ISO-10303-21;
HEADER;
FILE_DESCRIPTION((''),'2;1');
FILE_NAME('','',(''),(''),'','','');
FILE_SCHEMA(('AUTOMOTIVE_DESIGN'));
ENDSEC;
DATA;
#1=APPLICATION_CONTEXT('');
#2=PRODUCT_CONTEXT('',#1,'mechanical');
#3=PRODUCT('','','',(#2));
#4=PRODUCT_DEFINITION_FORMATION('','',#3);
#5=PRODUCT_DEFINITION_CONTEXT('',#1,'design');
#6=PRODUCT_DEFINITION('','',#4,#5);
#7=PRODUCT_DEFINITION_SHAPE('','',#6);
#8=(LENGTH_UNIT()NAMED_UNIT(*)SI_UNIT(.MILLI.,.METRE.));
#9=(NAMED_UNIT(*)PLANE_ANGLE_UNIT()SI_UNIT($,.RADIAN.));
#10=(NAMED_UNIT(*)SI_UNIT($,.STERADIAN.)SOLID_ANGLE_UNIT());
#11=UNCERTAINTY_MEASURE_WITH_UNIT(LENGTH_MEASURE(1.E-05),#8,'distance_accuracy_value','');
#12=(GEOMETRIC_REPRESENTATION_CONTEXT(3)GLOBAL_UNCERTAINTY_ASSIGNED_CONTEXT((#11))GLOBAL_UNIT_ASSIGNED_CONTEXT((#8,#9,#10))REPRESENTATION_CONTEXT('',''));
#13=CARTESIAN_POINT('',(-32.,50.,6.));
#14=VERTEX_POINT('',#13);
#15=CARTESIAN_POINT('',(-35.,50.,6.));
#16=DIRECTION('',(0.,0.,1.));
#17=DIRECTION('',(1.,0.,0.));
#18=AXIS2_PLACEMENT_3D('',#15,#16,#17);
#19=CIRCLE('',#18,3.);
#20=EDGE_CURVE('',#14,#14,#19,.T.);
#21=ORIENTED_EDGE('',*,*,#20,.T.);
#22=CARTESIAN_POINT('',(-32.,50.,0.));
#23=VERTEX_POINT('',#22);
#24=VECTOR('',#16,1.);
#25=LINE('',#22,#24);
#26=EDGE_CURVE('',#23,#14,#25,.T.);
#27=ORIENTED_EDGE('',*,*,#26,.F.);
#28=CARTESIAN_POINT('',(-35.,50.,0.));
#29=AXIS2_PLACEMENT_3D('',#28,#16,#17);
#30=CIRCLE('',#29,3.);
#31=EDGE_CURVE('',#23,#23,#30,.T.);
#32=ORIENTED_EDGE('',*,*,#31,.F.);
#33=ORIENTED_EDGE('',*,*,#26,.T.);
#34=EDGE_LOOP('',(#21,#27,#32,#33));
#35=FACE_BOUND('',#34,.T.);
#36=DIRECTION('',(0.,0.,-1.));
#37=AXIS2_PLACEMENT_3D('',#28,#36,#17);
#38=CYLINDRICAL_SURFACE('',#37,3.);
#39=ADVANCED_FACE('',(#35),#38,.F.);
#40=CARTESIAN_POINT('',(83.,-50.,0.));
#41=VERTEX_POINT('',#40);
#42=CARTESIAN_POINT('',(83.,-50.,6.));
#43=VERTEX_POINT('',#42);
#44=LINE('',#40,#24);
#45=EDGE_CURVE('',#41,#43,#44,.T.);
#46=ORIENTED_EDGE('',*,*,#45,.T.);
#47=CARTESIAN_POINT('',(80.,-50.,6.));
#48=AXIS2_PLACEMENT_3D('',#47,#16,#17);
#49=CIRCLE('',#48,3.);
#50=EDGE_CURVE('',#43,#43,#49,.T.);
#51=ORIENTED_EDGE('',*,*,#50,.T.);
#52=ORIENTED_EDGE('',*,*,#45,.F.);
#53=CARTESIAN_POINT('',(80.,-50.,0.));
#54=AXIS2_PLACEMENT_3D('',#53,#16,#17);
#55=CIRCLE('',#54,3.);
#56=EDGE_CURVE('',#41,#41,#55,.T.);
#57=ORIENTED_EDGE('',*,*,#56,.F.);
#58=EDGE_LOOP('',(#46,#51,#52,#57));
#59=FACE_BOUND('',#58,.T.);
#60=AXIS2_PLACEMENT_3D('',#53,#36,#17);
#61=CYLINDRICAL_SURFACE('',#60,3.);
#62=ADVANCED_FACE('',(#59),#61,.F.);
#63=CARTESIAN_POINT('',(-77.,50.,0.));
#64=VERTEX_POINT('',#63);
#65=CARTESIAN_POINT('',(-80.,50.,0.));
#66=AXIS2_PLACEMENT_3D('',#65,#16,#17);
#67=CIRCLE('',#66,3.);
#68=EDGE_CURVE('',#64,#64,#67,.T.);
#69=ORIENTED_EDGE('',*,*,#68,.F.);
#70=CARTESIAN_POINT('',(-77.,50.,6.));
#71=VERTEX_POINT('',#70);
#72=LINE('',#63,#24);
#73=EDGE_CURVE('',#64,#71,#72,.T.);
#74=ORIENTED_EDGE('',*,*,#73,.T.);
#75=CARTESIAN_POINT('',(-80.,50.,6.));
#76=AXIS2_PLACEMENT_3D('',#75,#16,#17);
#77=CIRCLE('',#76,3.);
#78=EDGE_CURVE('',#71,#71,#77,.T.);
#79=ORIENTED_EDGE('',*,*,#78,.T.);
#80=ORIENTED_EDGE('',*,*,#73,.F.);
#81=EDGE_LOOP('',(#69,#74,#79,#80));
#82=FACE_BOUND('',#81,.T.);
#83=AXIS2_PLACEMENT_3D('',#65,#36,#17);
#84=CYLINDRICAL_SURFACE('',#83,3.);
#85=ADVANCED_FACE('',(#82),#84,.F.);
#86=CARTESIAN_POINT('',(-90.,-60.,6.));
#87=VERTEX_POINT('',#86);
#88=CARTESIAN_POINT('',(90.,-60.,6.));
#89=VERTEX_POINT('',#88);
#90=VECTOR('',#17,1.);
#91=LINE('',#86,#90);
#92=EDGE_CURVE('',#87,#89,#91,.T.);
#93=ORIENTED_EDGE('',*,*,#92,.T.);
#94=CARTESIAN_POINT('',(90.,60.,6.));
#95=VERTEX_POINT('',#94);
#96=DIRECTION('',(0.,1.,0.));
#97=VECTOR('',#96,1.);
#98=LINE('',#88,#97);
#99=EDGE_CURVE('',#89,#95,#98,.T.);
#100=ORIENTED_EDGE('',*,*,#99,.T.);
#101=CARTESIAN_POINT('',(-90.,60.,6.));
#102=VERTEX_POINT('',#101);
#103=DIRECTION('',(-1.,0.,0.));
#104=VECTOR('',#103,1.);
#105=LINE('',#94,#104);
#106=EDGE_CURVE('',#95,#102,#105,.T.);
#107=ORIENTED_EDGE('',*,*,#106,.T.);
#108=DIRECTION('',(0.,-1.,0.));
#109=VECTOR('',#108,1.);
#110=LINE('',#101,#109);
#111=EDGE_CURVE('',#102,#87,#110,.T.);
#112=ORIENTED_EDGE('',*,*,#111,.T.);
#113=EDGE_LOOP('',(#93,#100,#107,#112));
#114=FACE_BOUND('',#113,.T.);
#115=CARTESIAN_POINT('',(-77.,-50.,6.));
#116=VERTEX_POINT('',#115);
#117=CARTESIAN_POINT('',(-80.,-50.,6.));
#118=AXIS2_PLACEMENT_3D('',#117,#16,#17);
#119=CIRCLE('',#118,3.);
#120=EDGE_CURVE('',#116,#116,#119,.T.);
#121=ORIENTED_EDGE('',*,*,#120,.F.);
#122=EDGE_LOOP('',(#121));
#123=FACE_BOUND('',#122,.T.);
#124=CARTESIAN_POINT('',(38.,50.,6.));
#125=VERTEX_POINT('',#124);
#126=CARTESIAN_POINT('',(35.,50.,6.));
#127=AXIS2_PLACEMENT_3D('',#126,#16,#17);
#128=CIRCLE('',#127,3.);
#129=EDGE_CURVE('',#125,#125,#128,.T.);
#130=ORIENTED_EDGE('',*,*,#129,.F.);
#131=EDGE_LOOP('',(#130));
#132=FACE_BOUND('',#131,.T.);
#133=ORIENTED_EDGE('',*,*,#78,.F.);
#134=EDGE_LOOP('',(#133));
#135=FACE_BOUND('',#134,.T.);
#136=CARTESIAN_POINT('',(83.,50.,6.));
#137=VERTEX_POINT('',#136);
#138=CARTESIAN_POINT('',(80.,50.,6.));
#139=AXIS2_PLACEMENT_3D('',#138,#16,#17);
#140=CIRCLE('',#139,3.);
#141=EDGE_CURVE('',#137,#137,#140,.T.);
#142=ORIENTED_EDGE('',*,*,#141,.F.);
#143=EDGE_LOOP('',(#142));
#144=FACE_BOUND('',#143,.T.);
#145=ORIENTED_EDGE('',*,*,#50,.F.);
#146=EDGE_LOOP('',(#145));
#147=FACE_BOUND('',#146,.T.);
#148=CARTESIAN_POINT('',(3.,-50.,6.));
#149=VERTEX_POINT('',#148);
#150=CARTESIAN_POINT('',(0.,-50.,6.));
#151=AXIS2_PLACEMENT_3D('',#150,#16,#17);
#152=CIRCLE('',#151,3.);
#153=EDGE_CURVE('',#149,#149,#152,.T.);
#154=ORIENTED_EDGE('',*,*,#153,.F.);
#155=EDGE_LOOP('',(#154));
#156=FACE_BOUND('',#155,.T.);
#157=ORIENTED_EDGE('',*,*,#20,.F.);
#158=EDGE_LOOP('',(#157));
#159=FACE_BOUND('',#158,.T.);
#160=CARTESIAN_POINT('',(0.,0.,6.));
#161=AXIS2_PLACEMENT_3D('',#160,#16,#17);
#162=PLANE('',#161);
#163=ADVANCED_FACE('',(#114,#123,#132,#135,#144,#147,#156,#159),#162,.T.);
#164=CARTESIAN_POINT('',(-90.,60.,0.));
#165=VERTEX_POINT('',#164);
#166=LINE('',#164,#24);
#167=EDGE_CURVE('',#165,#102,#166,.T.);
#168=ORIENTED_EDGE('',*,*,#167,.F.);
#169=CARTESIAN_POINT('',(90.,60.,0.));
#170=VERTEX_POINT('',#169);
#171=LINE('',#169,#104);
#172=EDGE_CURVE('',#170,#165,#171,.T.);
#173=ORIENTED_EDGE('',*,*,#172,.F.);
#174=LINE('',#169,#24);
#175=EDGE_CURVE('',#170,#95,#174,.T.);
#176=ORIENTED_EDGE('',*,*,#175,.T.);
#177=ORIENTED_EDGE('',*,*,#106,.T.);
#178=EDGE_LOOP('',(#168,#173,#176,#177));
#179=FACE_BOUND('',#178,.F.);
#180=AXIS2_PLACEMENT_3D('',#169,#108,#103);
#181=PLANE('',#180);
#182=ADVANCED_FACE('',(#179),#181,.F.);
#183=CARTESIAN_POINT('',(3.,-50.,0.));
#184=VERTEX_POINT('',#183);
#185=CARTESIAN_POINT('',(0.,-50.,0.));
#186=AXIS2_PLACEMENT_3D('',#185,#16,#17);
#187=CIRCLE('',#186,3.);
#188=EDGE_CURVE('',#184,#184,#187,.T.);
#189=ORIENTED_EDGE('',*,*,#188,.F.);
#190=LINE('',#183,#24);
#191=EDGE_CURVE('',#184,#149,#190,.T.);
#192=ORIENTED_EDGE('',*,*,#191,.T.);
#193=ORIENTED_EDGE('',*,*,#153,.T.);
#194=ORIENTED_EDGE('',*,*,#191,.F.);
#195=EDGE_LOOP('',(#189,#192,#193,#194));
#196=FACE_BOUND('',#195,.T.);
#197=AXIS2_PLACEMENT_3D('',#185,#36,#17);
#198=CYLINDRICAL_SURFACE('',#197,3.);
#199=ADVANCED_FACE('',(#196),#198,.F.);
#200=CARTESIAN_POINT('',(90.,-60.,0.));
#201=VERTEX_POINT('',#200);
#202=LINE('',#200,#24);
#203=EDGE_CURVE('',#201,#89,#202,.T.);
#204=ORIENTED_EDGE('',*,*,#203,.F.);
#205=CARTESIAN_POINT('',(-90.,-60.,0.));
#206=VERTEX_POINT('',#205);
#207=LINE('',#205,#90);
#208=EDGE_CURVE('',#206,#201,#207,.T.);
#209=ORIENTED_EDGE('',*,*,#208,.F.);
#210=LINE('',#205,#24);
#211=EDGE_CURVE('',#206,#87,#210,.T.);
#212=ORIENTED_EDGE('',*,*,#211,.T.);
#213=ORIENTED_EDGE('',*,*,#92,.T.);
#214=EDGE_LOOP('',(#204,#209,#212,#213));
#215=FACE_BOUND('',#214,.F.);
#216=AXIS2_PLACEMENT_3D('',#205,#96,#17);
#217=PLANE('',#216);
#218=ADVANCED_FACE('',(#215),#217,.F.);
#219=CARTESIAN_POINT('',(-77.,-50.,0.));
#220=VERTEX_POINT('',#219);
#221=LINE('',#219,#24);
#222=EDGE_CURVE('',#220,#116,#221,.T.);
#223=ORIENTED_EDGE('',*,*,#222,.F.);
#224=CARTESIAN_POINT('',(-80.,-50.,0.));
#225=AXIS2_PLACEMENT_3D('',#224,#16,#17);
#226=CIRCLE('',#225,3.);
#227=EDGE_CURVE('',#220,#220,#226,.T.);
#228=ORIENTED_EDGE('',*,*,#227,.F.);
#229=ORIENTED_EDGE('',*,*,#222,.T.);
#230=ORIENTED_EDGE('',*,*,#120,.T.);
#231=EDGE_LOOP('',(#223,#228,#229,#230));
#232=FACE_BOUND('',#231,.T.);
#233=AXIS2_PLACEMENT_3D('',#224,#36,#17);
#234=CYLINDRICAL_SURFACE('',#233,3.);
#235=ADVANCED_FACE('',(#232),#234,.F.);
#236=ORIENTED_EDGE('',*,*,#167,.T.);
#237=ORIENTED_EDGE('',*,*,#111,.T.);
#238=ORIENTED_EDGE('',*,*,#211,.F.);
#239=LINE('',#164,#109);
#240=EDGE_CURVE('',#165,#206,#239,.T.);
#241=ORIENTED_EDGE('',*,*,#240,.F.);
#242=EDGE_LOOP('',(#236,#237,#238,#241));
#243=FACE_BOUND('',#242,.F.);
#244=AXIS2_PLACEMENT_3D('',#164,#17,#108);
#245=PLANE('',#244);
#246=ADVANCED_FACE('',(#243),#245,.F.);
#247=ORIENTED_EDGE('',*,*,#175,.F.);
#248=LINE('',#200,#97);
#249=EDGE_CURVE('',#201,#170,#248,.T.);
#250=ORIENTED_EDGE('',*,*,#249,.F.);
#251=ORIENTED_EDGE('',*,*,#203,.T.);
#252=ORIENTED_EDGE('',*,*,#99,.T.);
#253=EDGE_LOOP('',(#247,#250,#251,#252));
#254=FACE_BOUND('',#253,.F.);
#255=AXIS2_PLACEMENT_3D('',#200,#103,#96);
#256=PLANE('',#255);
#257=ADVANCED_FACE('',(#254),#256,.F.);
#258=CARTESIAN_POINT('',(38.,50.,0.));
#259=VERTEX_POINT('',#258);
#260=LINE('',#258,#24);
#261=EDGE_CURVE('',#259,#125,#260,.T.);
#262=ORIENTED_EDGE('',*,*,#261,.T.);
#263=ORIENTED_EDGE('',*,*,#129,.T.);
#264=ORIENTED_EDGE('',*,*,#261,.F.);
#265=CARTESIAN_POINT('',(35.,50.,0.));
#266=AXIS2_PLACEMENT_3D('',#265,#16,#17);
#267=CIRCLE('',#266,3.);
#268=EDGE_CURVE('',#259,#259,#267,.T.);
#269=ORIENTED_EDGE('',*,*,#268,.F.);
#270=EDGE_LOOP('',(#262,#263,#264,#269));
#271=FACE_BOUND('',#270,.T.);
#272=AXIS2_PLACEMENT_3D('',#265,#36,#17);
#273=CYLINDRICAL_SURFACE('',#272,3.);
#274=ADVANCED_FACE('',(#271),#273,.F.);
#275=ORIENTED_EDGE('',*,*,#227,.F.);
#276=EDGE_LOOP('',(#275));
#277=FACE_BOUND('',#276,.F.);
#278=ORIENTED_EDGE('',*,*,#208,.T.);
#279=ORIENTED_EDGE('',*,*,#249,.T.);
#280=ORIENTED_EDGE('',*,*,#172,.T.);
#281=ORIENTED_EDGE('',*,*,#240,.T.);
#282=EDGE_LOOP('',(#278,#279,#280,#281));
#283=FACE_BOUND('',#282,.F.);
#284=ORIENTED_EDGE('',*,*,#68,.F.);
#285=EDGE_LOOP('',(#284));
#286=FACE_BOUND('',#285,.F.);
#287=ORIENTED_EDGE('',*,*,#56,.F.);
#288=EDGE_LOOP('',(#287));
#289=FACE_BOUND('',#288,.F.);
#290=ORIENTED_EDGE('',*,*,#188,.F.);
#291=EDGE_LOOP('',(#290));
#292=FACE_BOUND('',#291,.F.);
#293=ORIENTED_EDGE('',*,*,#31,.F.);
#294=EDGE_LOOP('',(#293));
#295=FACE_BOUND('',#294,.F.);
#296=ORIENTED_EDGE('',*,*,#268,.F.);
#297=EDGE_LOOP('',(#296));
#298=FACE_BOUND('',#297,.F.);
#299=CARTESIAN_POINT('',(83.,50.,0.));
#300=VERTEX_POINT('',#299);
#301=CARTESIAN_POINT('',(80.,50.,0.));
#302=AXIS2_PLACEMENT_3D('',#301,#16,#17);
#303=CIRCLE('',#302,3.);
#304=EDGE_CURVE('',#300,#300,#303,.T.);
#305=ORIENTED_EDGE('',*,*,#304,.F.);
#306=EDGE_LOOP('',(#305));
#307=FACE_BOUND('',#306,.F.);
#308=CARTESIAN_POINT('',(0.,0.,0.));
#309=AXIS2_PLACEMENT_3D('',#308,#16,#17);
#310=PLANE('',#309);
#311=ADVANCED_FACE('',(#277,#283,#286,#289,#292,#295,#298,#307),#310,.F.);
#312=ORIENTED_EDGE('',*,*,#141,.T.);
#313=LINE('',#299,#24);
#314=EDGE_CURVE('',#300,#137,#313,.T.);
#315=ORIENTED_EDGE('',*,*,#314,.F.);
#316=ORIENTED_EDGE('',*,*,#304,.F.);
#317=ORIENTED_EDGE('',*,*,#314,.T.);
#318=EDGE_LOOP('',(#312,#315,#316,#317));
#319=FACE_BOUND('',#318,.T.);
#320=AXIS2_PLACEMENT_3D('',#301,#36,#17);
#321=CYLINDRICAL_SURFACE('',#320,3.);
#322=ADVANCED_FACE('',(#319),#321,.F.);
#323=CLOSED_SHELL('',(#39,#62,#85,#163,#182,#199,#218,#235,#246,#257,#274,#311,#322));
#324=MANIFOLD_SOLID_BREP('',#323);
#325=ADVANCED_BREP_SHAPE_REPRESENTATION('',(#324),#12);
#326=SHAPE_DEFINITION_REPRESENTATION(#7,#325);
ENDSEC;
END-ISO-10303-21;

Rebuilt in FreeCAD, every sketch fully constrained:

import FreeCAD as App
import Part
import Sketcher
from FreeCAD import Vector
Q = App.Units.Quantity


def add_polygon(sketch, points):
    """Adds a closed chain of lines whose ends are joined by coincident constraints."""
    first, n = sketch.GeometryCount, len(points)
    for a, b in zip(points, points[1:] + points[:1]):
        sketch.addGeometry(Part.LineSegment(App.Vector(*a, 0), App.Vector(*b, 0)), False)
    for i in range(n):
        sketch.addConstraint(Sketcher.Constraint("Coincident", first + i, 2, first + (i + 1) % n, 1))

doc = App.newDocument("Part")
params = doc.addObject("Spreadsheet::Sheet", "Params")
for row, (alias, value) in enumerate([
    ("sketch1_diameter", "6 mm"),
    ("sketch1_height", "120 mm"),
    ("pad1_length", "6 mm"),
], start=1):
    params.set(f"A{row}", alias)
    params.set(f"B{row}", "=" + value)
    params.setAlias(f"B{row}", alias)

body = doc.addObject("PartDesign::Body", "Body")

# Sketch on XY plane
sketch1 = doc.addObject("Sketcher::SketchObject", "Sketch")
body.addObject(sketch1)
sketch1.AttachmentSupport = (doc.XY_Plane, [""])
sketch1.MapMode = "FlatFace"
add_polygon(sketch1, [(90, -60), (90, 60), (-90, 60), (-90, -60)])  # lines 0-3
sketch1.addGeometry(Part.Circle(Vector(-80, -50, 0), Vector(0, 0, 1), 3), False)  # 4
sketch1.addGeometry(Part.Circle(Vector(0, -50, 0), Vector(0, 0, 1), 3), False)  # 5
sketch1.addGeometry(Part.Circle(Vector(80, -50, 0), Vector(0, 0, 1), 3), False)  # 6
sketch1.addGeometry(Part.Circle(Vector(-80, 50, 0), Vector(0, 0, 1), 3), False)  # 7
sketch1.addGeometry(Part.Circle(Vector(-35, 50, 0), Vector(0, 0, 1), 3), False)  # 8
sketch1.addGeometry(Part.Circle(Vector(35, 50, 0), Vector(0, 0, 1), 3), False)  # 9
sketch1.addGeometry(Part.Circle(Vector(80, 50, 0), Vector(0, 0, 1), 3), False)  # 10
sketch1.addConstraint([
    Sketcher.Constraint("Vertical", 0),
    Sketcher.Constraint("Horizontal", 1),
    Sketcher.Constraint("Vertical", 2),
    Sketcher.Constraint("Horizontal", 3),
    Sketcher.Constraint("Equal", 4, 5),
    Sketcher.Constraint("Equal", 5, 6),
    Sketcher.Constraint("Equal", 6, 7),
    Sketcher.Constraint("Equal", 7, 8),
    Sketcher.Constraint("Equal", 8, 9),
    Sketcher.Constraint("Equal", 9, 10),
    Sketcher.Constraint("Symmetric", 6, 3, 7, 3, -1, 1),
    Sketcher.Constraint("Symmetric", 4, 3, 10, 3, -1, 1),
    Sketcher.Constraint("Symmetric", 0, 2, 2, 2, -1, 1),
    Sketcher.Constraint("Symmetric", 4, 3, 6, 3, -2),
    Sketcher.Constraint("Symmetric", 8, 3, 9, 3, -2),
    Sketcher.Constraint("PointOnObject", 5, 3, -2),
    Sketcher.Constraint("Horizontal", 4, 3, 5, 3),
    Sketcher.Constraint("Horizontal", 7, 3, 8, 3),
    Sketcher.Constraint("Diameter", 4, Q("6 mm")),
    Sketcher.Constraint("DistanceX", 4, 3, -1, 1, Q("80 mm")),
    Sketcher.Constraint("DistanceX", 8, 3, -1, 1, Q("35 mm")),
    Sketcher.Constraint("DistanceX", 10, 3, 0, 2, Q("10 mm")),
    Sketcher.Constraint("DistanceY", 10, 3, 0, 2, Q("10 mm")),
    Sketcher.Constraint("DistanceY", 0, 1, 0, 2, Q("120 mm")),
])
sketch1.setExpression("Constraints[22]", "Params.sketch1_diameter")
sketch1.setExpression("Constraints[27]", "Params.sketch1_height")
pad1 = doc.addObject("PartDesign::Pad", "Pad")
body.addObject(pad1)
pad1.Profile = sketch1
pad1.setExpression("Length", "Params.pad1_length")

doc.recompute()
